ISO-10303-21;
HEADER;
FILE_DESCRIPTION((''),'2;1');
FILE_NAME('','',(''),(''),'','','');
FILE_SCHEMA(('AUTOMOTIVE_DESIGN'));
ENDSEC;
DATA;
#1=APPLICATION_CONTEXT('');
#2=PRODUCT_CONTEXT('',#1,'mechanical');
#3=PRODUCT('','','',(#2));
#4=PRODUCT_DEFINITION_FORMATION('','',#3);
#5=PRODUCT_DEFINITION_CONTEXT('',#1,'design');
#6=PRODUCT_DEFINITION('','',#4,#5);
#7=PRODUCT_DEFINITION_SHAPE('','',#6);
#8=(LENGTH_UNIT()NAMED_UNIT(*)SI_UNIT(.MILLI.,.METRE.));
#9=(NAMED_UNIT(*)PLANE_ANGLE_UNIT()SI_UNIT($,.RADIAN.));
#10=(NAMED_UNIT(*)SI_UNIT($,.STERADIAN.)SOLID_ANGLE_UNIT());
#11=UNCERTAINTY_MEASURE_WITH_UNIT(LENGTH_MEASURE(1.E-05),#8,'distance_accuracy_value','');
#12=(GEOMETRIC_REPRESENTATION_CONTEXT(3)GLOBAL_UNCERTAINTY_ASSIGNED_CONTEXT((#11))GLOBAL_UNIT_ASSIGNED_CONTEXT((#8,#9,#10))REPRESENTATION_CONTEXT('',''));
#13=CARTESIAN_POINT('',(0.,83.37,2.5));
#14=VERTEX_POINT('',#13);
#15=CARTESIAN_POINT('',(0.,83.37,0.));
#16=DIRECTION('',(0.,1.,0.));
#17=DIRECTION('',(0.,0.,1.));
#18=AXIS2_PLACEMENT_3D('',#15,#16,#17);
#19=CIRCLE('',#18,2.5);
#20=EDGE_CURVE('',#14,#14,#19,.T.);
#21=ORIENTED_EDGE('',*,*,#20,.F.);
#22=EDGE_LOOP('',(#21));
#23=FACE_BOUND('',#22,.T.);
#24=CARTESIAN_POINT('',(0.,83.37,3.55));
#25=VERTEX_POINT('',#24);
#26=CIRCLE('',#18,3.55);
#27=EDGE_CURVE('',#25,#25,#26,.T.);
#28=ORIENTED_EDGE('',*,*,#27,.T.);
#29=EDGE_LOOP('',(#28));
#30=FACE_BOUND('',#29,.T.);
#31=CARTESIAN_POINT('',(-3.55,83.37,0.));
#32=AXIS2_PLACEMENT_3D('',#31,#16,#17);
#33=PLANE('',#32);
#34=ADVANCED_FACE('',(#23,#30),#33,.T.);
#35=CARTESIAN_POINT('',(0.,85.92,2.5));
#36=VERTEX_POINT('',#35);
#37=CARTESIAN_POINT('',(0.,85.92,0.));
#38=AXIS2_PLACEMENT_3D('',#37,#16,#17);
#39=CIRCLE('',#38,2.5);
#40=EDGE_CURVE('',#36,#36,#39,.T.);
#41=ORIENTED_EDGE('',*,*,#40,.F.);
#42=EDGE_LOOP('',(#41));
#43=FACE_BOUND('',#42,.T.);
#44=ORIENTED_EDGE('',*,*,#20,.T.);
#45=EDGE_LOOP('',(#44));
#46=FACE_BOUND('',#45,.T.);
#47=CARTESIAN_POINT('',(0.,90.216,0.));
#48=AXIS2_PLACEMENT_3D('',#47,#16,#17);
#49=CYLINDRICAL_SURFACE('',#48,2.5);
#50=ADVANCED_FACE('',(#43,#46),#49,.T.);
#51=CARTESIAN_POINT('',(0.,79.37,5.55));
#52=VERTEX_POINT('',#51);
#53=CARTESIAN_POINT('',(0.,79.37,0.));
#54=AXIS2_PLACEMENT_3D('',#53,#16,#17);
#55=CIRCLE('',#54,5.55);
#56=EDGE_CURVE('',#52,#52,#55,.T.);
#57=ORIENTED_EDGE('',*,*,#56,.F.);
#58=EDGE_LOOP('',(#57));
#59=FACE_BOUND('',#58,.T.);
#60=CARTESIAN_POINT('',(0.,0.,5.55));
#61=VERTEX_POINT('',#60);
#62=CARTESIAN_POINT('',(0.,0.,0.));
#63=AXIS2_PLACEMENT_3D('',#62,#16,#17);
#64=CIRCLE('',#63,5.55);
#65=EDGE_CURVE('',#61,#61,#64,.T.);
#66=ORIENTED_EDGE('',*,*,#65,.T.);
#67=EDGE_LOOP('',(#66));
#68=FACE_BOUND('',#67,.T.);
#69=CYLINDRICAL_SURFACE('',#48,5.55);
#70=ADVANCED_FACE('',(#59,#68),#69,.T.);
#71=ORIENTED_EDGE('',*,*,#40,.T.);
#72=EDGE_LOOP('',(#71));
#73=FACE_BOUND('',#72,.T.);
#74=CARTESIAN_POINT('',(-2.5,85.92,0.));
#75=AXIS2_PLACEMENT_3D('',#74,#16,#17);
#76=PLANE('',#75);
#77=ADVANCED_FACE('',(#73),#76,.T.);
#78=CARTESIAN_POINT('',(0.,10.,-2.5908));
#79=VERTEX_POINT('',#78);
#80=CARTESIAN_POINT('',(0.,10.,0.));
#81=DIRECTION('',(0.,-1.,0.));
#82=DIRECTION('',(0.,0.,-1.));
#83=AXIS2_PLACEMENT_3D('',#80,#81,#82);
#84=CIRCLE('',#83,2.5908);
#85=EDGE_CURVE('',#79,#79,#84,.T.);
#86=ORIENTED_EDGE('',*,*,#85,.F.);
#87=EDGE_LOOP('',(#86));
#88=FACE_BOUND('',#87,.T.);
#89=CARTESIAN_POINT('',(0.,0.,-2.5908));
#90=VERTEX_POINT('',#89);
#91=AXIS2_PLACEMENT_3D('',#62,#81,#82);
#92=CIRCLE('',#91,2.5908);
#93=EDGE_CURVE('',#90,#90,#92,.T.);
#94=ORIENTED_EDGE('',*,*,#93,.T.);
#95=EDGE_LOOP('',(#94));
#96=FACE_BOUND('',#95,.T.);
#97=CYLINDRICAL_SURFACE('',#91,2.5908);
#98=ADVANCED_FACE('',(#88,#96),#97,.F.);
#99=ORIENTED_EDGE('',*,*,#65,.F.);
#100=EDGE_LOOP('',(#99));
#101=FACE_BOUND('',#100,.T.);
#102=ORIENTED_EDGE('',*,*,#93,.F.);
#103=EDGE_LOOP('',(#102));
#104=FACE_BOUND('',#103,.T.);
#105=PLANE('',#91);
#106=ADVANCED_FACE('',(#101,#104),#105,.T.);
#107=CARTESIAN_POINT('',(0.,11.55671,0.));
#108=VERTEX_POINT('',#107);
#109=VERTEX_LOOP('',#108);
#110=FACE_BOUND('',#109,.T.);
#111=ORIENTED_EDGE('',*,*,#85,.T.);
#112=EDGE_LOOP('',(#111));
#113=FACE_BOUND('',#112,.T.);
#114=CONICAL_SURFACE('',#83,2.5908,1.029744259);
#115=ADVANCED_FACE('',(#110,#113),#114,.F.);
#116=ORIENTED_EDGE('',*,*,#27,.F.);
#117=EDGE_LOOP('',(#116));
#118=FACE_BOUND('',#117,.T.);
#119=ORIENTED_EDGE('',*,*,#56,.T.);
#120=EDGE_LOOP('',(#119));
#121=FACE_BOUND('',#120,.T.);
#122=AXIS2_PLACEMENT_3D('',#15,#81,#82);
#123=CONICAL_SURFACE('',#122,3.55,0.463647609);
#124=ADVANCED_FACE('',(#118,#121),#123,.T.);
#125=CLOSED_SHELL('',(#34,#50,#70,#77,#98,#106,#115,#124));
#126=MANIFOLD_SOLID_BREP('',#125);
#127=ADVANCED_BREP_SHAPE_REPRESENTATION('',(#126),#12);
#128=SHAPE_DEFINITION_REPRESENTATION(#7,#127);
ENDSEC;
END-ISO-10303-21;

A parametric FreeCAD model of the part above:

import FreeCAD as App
import Part
import Sketcher
from FreeCAD import Vector


def add_polygon(sketch, points):
    """Adds a closed chain of lines whose ends are joined by coincident constraints."""
    first, n = sketch.GeometryCount, len(points)
    for a, b in zip(points, points[1:] + points[:1]):
        sketch.addGeometry(Part.LineSegment(App.Vector(*a, 0), App.Vector(*b, 0)), False)
    for i in range(n):
        sketch.addConstraint(Sketcher.Constraint("Coincident", first + i, 2, first + (i + 1) % n, 1))

doc = App.newDocument("Part")
body = doc.addObject("PartDesign::Body", "Body")

# Sketch on XY plane
sketch1 = body.newObject("Sketcher::SketchObject", "Sketch")
sketch1.AttachmentSupport = (doc.getObject("XY_Plane"), [""])
sketch1.MapMode = "FlatFace"
add_polygon(sketch1, [(-5.5, 0), (0, 0), (0, 85.9), (-2.5, 85.9), (-2.5, 83.4), (-3.5, 83.4), (-5.5, 79.4)])  # lines 0-6
sketch1.addConstraint([
    Sketcher.Constraint("Horizontal", 0),
    Sketcher.Constraint("Vertical", 1),
    Sketcher.Constraint("Horizontal", 2),
    Sketcher.Constraint("Vertical", 3),
    Sketcher.Constraint("Horizontal", 4),
    Sketcher.Constraint("Vertical", 6),
    Sketcher.Constraint("Coincident", 0, 2, -1, 1),
    Sketcher.Constraint("DistanceX", 2, 2, 2, 1, 2.5),
    Sketcher.Constraint("DistanceX", 5, 2, 4, 2, 2.0),
    Sketcher.Constraint("DistanceY", 5, 2, 4, 2, 4.0),
    Sketcher.Constraint("DistanceX", 0, 1, 0, 2, 5.55),
    Sketcher.Constraint("DistanceY", 1, 1, 1, 2, 85.92),
    Sketcher.Constraint("DistanceY", 3, 2, 3, 1, 2.55),
])
revolution = body.newObject("PartDesign::Revolution", "Revolution")
revolution.Profile = sketch1
revolution.ReferenceAxis = (sketch1, ["V_Axis"])
revolution.Angle = 360

# Sketch on XZ plane
sketch2 = body.newObject("Sketcher::SketchObject", "Sketch001")
sketch2.AttachmentSupport = (doc.getObject("XZ_Plane"), [""])
sketch2.MapMode = "FlatFace"
sketch2.addGeometry(Part.Circle(Vector(0, 0, 0), Vector(0, 0, 1), 2.6), False)
sketch2.addConstraint([
    Sketcher.Constraint("Coincident", 0, 3, -1, 1),
    Sketcher.Constraint("Diameter", 0, 5.1816),
])
doc.recompute()
hole = body.newObject("PartDesign::Hole", "Hole")
hole.Profile = sketch2
hole.ThreadType = "None"
hole.Diameter = 5.1816
hole.DepthType = "Dimension"
hole.Depth = 10
hole.DrillPoint = "Angled"
hole.DrillPointAngle = 118

doc.recompute()
